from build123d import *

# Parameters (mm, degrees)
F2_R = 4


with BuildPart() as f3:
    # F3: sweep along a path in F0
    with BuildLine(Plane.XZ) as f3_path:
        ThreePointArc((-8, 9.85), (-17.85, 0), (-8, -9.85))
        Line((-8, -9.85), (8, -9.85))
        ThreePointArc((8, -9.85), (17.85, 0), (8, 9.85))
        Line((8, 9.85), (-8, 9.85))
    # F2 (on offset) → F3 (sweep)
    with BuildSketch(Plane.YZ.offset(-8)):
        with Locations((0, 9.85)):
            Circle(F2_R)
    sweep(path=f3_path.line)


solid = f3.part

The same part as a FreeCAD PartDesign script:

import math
import FreeCAD as App
import Part
import Sketcher

V = App.Vector
Q = App.Units.Quantity

doc = App.newDocument("Part")
body = doc.addObject("PartDesign::Body", "Body")

sketch1 = doc.addObject("Sketcher::SketchObject", "Sketch")
body.addObject(sketch1)
sketch1.AttachmentSupport = (doc.YZ_Plane, [""])
sketch1.MapMode = "FlatFace"
sketch1.AttachmentOffset = App.Placement(V(0, 0, -8), App.Rotation())
sketch1.addGeometry(Part.Circle(V(0, 9.8, 0), V(0, 0, 1), 4), False)
sketch1.addConstraint([
    Sketcher.Constraint("PointOnObject", 0, 3, -2),
    Sketcher.Constraint("Diameter", 0, Q("8 mm")),
    Sketcher.Constraint("DistanceY", -1, 1, 0, 3, Q("9.85 mm")),
])

sketch2 = doc.addObject("Sketcher::SketchObject", "Sketch001")
body.addObject(sketch2)
sketch2.AttachmentSupport = (doc.XZ_Plane, [""])
sketch2.MapMode = "FlatFace"
sketch2.addGeometry([
    Part.ArcOfCircle(Part.Circle(V(-8, 0, 0), V(0, 0, 1), 10), math.radians(90), math.radians(270)),
    Part.LineSegment(V(-8, -10, 0), V(8, -10, 0)),
    Part.ArcOfCircle(Part.Circle(V(8, 0, 0), V(0, 0, 1), 10), math.radians(-90), math.radians(90)),
    Part.LineSegment(V(8, 10, 0), V(-8, 10, 0)),
], False)
sketch2.addConstraint([
    Sketcher.Constraint("Tangent", 0, 2, 1, 1),
    Sketcher.Constraint("Tangent", 1, 2, 2, 1),
    Sketcher.Constraint("Tangent", 2, 2, 3, 1),
    Sketcher.Constraint("Tangent", 3, 2, 0, 1),
    Sketcher.Constraint("Horizontal", 1),
    Sketcher.Constraint("Horizontal", 3),
    Sketcher.Constraint("Symmetric", 0, 3, 2, 3, -1, 1),
    Sketcher.Constraint("DistanceX", 1, 1, 1, 2, Q("16 mm")),
    Sketcher.Constraint("Radius", 0, Q("9.85 mm")),
])
doc.recompute()

additivepipe = doc.addObject("PartDesign::AdditivePipe", "AdditivePipe")
body.addObject(additivepipe)
additivepipe.Profile = sketch1
additivepipe.Spine = (sketch2, ["Edge1", "Edge2", "Edge3", "Edge4"])

doc.recompute()
